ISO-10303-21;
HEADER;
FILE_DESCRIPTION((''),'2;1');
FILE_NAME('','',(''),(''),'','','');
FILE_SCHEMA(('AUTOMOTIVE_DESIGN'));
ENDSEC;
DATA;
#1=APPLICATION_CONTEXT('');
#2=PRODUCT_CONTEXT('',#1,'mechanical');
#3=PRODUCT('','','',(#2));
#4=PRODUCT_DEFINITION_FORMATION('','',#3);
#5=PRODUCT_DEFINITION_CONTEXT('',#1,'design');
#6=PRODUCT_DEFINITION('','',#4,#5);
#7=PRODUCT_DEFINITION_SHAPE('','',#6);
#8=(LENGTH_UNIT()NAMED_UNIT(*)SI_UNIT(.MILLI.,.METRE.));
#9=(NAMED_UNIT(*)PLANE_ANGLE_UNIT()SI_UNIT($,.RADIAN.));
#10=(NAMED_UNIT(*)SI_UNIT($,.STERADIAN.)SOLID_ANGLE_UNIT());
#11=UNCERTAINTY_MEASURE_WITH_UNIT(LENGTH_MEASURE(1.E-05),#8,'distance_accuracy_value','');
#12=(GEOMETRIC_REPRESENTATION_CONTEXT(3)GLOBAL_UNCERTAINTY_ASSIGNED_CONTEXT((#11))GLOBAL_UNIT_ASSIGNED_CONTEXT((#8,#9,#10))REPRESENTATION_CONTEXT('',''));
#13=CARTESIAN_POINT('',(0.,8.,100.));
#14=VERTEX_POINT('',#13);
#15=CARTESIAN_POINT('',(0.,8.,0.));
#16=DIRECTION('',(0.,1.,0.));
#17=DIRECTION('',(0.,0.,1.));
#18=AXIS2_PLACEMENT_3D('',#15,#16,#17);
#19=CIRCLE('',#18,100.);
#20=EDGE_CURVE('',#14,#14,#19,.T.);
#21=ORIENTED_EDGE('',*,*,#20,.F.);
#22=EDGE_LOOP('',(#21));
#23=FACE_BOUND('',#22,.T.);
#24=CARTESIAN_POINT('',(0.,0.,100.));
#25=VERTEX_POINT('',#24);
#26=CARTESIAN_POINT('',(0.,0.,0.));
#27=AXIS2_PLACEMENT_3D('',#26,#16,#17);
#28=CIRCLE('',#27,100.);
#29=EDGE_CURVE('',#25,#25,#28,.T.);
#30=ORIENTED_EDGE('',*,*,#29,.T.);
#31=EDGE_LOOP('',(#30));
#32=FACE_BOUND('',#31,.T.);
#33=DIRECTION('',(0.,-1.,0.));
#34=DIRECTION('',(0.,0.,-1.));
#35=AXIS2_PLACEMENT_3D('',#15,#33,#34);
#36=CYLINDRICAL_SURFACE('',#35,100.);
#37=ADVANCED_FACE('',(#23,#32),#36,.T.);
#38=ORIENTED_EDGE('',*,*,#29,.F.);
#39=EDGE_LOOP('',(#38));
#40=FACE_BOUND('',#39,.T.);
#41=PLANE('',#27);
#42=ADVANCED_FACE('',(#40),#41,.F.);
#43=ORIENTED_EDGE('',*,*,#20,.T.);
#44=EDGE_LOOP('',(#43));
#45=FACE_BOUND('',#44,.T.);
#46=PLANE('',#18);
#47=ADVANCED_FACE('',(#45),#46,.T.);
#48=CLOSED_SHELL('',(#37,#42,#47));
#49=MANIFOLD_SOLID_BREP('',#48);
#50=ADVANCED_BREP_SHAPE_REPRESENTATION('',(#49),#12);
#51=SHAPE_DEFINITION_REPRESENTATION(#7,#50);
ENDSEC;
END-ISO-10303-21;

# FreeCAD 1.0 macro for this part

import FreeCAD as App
import Part
import Sketcher
from FreeCAD import Vector

doc = App.newDocument("Part")
body = doc.addObject("PartDesign::Body", "Body")

sketch1 = body.newObject("Sketcher::SketchObject", "Sketch")
sketch1.AttachmentSupport = (doc.getObject("XZ_Plane"), [""])
sketch1.MapMode = "FlatFace"
sketch1.addGeometry(Part.Circle(Vector(0, 0, 0), Vector(0, 0, 1), 100), False)
sketch1.addConstraint(Sketcher.Constraint("Coincident", 0, 3, -1, 1))
sketch1.addConstraint(Sketcher.Constraint("Diameter", 0, 200.0))
pad1 = body.newObject("PartDesign::Pad", "Pad")
pad1.Profile = sketch1
pad1.Length = 8
pad1.Reversed = True

doc.recompute()
